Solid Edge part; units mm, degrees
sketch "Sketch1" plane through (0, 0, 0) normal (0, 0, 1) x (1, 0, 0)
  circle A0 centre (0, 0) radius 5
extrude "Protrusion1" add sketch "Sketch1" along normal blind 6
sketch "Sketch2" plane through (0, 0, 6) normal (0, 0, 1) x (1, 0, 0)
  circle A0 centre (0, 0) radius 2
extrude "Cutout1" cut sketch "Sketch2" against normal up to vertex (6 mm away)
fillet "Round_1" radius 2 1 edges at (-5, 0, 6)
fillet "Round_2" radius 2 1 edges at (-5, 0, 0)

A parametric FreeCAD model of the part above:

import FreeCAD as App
import Part
import Sketcher

V = App.Vector


def edges_at(feature, points):
    """Names of the edges that pass closest to the given points."""
    edges = feature.Shape.Edges
    near = lambda p: min(range(len(edges)), key=lambda i: edges[i].distToShape(Part.Vertex(*p))[0])
    return sorted({f"Edge{near(p) + 1}" for p in points})

doc = App.newDocument("Part")
params = doc.addObject("Spreadsheet::Sheet", "Params")
for row, (alias, value) in enumerate([
    ("sketch1_diameter", "10 mm"),
    ("pad1_length", "6 mm"),
    ("sketch2_diameter", "4 mm"),
    ("pocket1_length", "6 mm"),
    ("fillet_radius", "2 mm"),
    ("fillet2_radius", "2 mm"),
], start=1):
    params.set(f"A{row}", alias)
    params.set(f"B{row}", "=" + value)
    params.setAlias(f"B{row}", alias)

body = doc.addObject("PartDesign::Body", "Body")

# Sketch on XY plane
sketch1 = body.newObject("Sketcher::SketchObject", "Sketch")
sketch1.AttachmentSupport = (doc.getObject("XY_Plane"), [""])
sketch1.MapMode = "FlatFace"
sketch1.addGeometry(Part.Circle(V(0, 0, 0), V(0, 0, 1), 5), False)
sketch1.addConstraint(Sketcher.Constraint("Coincident", 0, 3, -1, 1))
sketch1.addConstraint(Sketcher.Constraint("Diameter", 0, 10.0))
sketch1.setExpression("Constraints[1]", "Params.sketch1_diameter")
pad1 = body.newObject("PartDesign::Pad", "Pad")
pad1.Profile = sketch1
pad1.setExpression("Length", "Params.pad1_length")

# Sketch on XY plane
sketch2 = body.newObject("Sketcher::SketchObject", "Sketch001")
sketch2.AttachmentSupport = (doc.getObject("XY_Plane"), [""])
sketch2.MapMode = "FlatFace"
sketch2.AttachmentOffset = App.Placement(V(0, 0, 6), App.Rotation())
sketch2.addGeometry(Part.Circle(V(0, 0, 0), V(0, 0, 1), 2), False)
sketch2.addConstraint(Sketcher.Constraint("Coincident", 0, 3, -1, 1))
sketch2.addConstraint(Sketcher.Constraint("Diameter", 0, 4.0))
sketch2.setExpression("Constraints[1]", "Params.sketch2_diameter")
pocket1 = body.newObject("PartDesign::Pocket", "Pocket")
pocket1.Profile = sketch2
pocket1.setExpression("Length", "Params.pocket1_length")
doc.recompute()

fillet = body.newObject("PartDesign::Fillet", "Fillet")
fillet.Base = (pocket1, edges_at(pocket1, [(-5, 0, 6)]))
fillet.setExpression("Radius", "Params.fillet_radius")
doc.recompute()

fillet2 = body.newObject("PartDesign::Fillet", "Fillet001")
fillet2.Base = (fillet, edges_at(fillet, [(-5, 0, 0)]))
fillet2.setExpression("Radius", "Params.fillet2_radius")

doc.recompute()
